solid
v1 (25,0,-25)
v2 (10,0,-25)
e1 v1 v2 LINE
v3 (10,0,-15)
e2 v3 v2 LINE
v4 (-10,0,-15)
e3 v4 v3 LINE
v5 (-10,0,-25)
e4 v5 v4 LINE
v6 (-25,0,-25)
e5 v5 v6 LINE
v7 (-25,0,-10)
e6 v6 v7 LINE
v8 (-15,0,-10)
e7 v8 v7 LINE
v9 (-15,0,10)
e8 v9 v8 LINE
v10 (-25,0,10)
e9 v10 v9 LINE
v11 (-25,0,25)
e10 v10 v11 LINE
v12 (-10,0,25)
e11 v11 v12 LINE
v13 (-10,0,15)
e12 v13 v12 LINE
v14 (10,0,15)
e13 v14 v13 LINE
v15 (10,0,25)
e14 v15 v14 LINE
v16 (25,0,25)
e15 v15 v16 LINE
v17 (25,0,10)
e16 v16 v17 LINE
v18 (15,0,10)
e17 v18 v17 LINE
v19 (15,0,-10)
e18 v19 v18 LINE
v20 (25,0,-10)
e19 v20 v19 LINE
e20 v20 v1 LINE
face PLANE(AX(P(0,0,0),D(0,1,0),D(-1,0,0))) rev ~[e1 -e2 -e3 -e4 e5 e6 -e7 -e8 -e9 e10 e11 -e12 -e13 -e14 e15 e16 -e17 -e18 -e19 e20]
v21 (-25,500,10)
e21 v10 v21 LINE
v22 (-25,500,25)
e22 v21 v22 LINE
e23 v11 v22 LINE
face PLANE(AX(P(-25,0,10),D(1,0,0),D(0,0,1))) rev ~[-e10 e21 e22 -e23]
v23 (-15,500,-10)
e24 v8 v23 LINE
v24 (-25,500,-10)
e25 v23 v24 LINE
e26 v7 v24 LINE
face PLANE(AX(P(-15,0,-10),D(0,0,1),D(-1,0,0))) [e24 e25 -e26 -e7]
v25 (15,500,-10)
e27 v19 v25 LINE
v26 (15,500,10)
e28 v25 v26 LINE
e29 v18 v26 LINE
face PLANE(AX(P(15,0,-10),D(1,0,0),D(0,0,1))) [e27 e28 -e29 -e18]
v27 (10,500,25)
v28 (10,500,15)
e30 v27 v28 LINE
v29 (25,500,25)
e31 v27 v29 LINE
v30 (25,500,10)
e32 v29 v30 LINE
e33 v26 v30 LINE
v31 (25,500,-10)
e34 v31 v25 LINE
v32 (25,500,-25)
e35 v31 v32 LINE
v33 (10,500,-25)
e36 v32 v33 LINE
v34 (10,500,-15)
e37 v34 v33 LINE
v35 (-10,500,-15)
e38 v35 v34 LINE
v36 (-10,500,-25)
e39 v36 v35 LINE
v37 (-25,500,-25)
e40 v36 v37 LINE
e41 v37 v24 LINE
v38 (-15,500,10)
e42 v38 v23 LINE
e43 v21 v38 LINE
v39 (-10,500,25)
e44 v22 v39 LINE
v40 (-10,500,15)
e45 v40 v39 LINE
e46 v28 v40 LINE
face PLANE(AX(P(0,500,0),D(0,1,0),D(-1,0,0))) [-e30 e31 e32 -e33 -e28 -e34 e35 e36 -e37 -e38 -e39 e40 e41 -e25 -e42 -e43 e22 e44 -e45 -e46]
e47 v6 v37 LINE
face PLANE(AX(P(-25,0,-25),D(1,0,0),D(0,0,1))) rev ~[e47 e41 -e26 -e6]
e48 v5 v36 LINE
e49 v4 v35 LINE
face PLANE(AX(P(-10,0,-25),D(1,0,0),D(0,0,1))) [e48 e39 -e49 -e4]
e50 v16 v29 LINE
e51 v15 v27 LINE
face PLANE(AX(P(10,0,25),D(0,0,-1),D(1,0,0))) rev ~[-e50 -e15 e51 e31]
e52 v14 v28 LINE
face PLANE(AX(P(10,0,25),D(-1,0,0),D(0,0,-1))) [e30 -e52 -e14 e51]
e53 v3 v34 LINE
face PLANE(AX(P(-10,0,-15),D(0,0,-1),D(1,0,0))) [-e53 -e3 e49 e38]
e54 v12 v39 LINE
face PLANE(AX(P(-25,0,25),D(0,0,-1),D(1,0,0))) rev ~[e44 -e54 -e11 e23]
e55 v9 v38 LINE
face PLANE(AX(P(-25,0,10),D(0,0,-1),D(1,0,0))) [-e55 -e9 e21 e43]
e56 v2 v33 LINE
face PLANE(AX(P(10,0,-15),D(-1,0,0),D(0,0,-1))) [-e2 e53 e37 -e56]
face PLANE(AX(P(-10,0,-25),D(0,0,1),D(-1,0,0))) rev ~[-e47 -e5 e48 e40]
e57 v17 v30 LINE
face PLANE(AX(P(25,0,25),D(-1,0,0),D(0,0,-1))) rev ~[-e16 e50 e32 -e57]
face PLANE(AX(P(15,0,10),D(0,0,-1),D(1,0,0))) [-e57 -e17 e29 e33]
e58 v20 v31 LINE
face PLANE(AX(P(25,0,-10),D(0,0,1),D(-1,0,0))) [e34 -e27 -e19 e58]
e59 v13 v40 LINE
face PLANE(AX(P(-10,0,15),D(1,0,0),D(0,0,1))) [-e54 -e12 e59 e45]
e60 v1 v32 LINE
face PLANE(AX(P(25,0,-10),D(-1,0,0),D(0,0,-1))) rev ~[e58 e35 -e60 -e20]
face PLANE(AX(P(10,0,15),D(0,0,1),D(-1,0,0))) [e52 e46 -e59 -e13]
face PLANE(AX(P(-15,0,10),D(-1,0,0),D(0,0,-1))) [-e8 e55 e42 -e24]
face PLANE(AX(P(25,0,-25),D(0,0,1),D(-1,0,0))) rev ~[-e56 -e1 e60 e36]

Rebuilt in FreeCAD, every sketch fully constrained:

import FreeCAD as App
import Part
import Sketcher
from FreeCAD import Vector

doc = App.newDocument("Part")
body = doc.addObject("PartDesign::Body", "Body")

sketch1 = body.newObject("Sketcher::SketchObject", "Sketch")
sketch1.AttachmentSupport = (doc.getObject("XZ_Plane"), [""])
sketch1.MapMode = "FlatFace"
sketch1.addGeometry(Part.LineSegment(Vector(25, -10, 0), Vector(25, -25, 0)), False)
sketch1.addGeometry(Part.LineSegment(Vector(25, -25, 0), Vector(10, -25, 0)), False)
sketch1.addGeometry(Part.LineSegment(Vector(10, -25, 0), Vector(10, -15, 0)), False)
sketch1.addGeometry(Part.LineSegment(Vector(10, -15, 0), Vector(-10, -15, 0)), False)
sketch1.addGeometry(Part.LineSegment(Vector(-10, -15, 0), Vector(-10, -25, 0)), False)
sketch1.addGeometry(Part.LineSegment(Vector(-10, -25, 0), Vector(-25, -25, 0)), False)
sketch1.addGeometry(Part.LineSegment(Vector(-25, -25, 0), Vector(-25, -10, 0)), False)
sketch1.addGeometry(Part.LineSegment(Vector(-25, -10, 0), Vector(-15, -10, 0)), False)
sketch1.addGeometry(Part.LineSegment(Vector(-15, -10, 0), Vector(-15, 10, 0)), False)
sketch1.addGeometry(Part.LineSegment(Vector(-15, 10, 0), Vector(-25, 10, 0)), False)
sketch1.addGeometry(Part.LineSegment(Vector(-25, 10, 0), Vector(-25, 25, 0)), False)
sketch1.addGeometry(Part.LineSegment(Vector(-25, 25, 0), Vector(-10, 25, 0)), False)
sketch1.addGeometry(Part.LineSegment(Vector(-10, 25, 0), Vector(-10, 15, 0)), False)
sketch1.addGeometry(Part.LineSegment(Vector(-10, 15, 0), Vector(10, 15, 0)), False)
sketch1.addGeometry(Part.LineSegment(Vector(10, 15, 0), Vector(10, 25, 0)), False)
sketch1.addGeometry(Part.LineSegment(Vector(10, 25, 0), Vector(25, 25, 0)), False)
sketch1.addGeometry(Part.LineSegment(Vector(25, 25, 0), Vector(25, 10, 0)), False)
sketch1.addGeometry(Part.LineSegment(Vector(25, 10, 0), Vector(15, 10, 0)), False)
sketch1.addGeometry(Part.LineSegment(Vector(15, 10, 0), Vector(15, -10, 0)), False)
sketch1.addGeometry(Part.LineSegment(Vector(15, -10, 0), Vector(25, -10, 0)), False)
sketch1.addConstraint(Sketcher.Constraint("Coincident", 0, 2, 1, 1))
sketch1.addConstraint(Sketcher.Constraint("Coincident", 1, 2, 2, 1))
sketch1.addConstraint(Sketcher.Constraint("Coincident", 2, 2, 3, 1))
sketch1.addConstraint(Sketcher.Constraint("Coincident", 3, 2, 4, 1))
sketch1.addConstraint(Sketcher.Constraint("Coincident", 4, 2, 5, 1))
sketch1.addConstraint(Sketcher.Constraint("Coincident", 5, 2, 6, 1))
sketch1.addConstraint(Sketcher.Constraint("Coincident", 6, 2, 7, 1))
sketch1.addConstraint(Sketcher.Constraint("Coincident", 7, 2, 8, 1))
sketch1.addConstraint(Sketcher.Constraint("Coincident", 8, 2, 9, 1))
sketch1.addConstraint(Sketcher.Constraint("Coincident", 9, 2, 10, 1))
sketch1.addConstraint(Sketcher.Constraint("Coincident", 10, 2, 11, 1))
sketch1.addConstraint(Sketcher.Constraint("Coincident", 11, 2, 12, 1))
sketch1.addConstraint(Sketcher.Constraint("Coincident", 12, 2, 13, 1))
sketch1.addConstraint(Sketcher.Constraint("Coincident", 13, 2, 14, 1))
sketch1.addConstraint(Sketcher.Constraint("Coincident", 14, 2, 15, 1))
sketch1.addConstraint(Sketcher.Constraint("Coincident", 15, 2, 16, 1))
sketch1.addConstraint(Sketcher.Constraint("Coincident", 16, 2, 17, 1))
sketch1.addConstraint(Sketcher.Constraint("Coincident", 17, 2, 18, 1))
sketch1.addConstraint(Sketcher.Constraint("Coincident", 18, 2, 19, 1))
sketch1.addConstraint(Sketcher.Constraint("Coincident", 19, 2, 0, 1))
sketch1.addConstraint(Sketcher.Constraint("Vertical", 0))
sketch1.addConstraint(Sketcher.Constraint("Horizontal", 1))
sketch1.addConstraint(Sketcher.Constraint("Vertical", 2))
sketch1.addConstraint(Sketcher.Constraint("Horizontal", 3))
sketch1.addConstraint(Sketcher.Constraint("Vertical", 4))
sketch1.addConstraint(Sketcher.Constraint("Horizontal", 5))
sketch1.addConstraint(Sketcher.Constraint("Vertical", 6))
sketch1.addConstraint(Sketcher.Constraint("Horizontal", 7))
sketch1.addConstraint(Sketcher.Constraint("Vertical", 8))
sketch1.addConstraint(Sketcher.Constraint("Horizontal", 9))
sketch1.addConstraint(Sketcher.Constraint("Vertical", 10))
sketch1.addConstraint(Sketcher.Constraint("Horizontal", 11))
sketch1.addConstraint(Sketcher.Constraint("Vertical", 12))
sketch1.addConstraint(Sketcher.Constraint("Horizontal", 13))
sketch1.addConstraint(Sketcher.Constraint("Vertical", 14))
sketch1.addConstraint(Sketcher.Constraint("Horizontal", 15))
sketch1.addConstraint(Sketcher.Constraint("Vertical", 16))
sketch1.addConstraint(Sketcher.Constraint("Horizontal", 17))
sketch1.addConstraint(Sketcher.Constraint("Vertical", 18))
sketch1.addConstraint(Sketcher.Constraint("Horizontal", 19))
sketch1.addConstraint(Sketcher.Constraint("Symmetric", 0, 2, 10, 2, -1, 1))
sketch1.addConstraint(Sketcher.Constraint("Symmetric", 2, 2, 12, 2, -1, 1))
sketch1.addConstraint(Sketcher.Constraint("Symmetric", 4, 2, 14, 2, -1, 1))
sketch1.addConstraint(Sketcher.Constraint("Symmetric", 6, 2, 16, 2, -1, 1))
sketch1.addConstraint(Sketcher.Constraint("Symmetric", 8, 2, 18, 2, -1, 1))
sketch1.addConstraint(Sketcher.Constraint("Symmetric", 1, 2, 4, 2, -2))
sketch1.addConstraint(Sketcher.Constraint("Symmetric", 9, 2, 16, 2, -2))
sketch1.addConstraint(Sketcher.Constraint("Equal", 15, 0))
sketch1.addConstraint(Sketcher.Constraint("Equal", 19, 2))
sketch1.addConstraint(Sketcher.Constraint("Equal", 13, 8))
sketch1.addConstraint(Sketcher.Constraint("DistanceX", 7, 1, 7, 2, 10.0))
sketch1.addConstraint(Sketcher.Constraint("DistanceX", -1, 1, 1, 2, 10.0))
sketch1.addConstraint(Sketcher.Constraint("DistanceX", 5, 2, 0, 2, 50.0))
pad1 = body.newObject("PartDesign::Pad", "Pad")
pad1.Profile = sketch1
pad1.Length = 500
pad1.Reversed = True

doc.recompute()
